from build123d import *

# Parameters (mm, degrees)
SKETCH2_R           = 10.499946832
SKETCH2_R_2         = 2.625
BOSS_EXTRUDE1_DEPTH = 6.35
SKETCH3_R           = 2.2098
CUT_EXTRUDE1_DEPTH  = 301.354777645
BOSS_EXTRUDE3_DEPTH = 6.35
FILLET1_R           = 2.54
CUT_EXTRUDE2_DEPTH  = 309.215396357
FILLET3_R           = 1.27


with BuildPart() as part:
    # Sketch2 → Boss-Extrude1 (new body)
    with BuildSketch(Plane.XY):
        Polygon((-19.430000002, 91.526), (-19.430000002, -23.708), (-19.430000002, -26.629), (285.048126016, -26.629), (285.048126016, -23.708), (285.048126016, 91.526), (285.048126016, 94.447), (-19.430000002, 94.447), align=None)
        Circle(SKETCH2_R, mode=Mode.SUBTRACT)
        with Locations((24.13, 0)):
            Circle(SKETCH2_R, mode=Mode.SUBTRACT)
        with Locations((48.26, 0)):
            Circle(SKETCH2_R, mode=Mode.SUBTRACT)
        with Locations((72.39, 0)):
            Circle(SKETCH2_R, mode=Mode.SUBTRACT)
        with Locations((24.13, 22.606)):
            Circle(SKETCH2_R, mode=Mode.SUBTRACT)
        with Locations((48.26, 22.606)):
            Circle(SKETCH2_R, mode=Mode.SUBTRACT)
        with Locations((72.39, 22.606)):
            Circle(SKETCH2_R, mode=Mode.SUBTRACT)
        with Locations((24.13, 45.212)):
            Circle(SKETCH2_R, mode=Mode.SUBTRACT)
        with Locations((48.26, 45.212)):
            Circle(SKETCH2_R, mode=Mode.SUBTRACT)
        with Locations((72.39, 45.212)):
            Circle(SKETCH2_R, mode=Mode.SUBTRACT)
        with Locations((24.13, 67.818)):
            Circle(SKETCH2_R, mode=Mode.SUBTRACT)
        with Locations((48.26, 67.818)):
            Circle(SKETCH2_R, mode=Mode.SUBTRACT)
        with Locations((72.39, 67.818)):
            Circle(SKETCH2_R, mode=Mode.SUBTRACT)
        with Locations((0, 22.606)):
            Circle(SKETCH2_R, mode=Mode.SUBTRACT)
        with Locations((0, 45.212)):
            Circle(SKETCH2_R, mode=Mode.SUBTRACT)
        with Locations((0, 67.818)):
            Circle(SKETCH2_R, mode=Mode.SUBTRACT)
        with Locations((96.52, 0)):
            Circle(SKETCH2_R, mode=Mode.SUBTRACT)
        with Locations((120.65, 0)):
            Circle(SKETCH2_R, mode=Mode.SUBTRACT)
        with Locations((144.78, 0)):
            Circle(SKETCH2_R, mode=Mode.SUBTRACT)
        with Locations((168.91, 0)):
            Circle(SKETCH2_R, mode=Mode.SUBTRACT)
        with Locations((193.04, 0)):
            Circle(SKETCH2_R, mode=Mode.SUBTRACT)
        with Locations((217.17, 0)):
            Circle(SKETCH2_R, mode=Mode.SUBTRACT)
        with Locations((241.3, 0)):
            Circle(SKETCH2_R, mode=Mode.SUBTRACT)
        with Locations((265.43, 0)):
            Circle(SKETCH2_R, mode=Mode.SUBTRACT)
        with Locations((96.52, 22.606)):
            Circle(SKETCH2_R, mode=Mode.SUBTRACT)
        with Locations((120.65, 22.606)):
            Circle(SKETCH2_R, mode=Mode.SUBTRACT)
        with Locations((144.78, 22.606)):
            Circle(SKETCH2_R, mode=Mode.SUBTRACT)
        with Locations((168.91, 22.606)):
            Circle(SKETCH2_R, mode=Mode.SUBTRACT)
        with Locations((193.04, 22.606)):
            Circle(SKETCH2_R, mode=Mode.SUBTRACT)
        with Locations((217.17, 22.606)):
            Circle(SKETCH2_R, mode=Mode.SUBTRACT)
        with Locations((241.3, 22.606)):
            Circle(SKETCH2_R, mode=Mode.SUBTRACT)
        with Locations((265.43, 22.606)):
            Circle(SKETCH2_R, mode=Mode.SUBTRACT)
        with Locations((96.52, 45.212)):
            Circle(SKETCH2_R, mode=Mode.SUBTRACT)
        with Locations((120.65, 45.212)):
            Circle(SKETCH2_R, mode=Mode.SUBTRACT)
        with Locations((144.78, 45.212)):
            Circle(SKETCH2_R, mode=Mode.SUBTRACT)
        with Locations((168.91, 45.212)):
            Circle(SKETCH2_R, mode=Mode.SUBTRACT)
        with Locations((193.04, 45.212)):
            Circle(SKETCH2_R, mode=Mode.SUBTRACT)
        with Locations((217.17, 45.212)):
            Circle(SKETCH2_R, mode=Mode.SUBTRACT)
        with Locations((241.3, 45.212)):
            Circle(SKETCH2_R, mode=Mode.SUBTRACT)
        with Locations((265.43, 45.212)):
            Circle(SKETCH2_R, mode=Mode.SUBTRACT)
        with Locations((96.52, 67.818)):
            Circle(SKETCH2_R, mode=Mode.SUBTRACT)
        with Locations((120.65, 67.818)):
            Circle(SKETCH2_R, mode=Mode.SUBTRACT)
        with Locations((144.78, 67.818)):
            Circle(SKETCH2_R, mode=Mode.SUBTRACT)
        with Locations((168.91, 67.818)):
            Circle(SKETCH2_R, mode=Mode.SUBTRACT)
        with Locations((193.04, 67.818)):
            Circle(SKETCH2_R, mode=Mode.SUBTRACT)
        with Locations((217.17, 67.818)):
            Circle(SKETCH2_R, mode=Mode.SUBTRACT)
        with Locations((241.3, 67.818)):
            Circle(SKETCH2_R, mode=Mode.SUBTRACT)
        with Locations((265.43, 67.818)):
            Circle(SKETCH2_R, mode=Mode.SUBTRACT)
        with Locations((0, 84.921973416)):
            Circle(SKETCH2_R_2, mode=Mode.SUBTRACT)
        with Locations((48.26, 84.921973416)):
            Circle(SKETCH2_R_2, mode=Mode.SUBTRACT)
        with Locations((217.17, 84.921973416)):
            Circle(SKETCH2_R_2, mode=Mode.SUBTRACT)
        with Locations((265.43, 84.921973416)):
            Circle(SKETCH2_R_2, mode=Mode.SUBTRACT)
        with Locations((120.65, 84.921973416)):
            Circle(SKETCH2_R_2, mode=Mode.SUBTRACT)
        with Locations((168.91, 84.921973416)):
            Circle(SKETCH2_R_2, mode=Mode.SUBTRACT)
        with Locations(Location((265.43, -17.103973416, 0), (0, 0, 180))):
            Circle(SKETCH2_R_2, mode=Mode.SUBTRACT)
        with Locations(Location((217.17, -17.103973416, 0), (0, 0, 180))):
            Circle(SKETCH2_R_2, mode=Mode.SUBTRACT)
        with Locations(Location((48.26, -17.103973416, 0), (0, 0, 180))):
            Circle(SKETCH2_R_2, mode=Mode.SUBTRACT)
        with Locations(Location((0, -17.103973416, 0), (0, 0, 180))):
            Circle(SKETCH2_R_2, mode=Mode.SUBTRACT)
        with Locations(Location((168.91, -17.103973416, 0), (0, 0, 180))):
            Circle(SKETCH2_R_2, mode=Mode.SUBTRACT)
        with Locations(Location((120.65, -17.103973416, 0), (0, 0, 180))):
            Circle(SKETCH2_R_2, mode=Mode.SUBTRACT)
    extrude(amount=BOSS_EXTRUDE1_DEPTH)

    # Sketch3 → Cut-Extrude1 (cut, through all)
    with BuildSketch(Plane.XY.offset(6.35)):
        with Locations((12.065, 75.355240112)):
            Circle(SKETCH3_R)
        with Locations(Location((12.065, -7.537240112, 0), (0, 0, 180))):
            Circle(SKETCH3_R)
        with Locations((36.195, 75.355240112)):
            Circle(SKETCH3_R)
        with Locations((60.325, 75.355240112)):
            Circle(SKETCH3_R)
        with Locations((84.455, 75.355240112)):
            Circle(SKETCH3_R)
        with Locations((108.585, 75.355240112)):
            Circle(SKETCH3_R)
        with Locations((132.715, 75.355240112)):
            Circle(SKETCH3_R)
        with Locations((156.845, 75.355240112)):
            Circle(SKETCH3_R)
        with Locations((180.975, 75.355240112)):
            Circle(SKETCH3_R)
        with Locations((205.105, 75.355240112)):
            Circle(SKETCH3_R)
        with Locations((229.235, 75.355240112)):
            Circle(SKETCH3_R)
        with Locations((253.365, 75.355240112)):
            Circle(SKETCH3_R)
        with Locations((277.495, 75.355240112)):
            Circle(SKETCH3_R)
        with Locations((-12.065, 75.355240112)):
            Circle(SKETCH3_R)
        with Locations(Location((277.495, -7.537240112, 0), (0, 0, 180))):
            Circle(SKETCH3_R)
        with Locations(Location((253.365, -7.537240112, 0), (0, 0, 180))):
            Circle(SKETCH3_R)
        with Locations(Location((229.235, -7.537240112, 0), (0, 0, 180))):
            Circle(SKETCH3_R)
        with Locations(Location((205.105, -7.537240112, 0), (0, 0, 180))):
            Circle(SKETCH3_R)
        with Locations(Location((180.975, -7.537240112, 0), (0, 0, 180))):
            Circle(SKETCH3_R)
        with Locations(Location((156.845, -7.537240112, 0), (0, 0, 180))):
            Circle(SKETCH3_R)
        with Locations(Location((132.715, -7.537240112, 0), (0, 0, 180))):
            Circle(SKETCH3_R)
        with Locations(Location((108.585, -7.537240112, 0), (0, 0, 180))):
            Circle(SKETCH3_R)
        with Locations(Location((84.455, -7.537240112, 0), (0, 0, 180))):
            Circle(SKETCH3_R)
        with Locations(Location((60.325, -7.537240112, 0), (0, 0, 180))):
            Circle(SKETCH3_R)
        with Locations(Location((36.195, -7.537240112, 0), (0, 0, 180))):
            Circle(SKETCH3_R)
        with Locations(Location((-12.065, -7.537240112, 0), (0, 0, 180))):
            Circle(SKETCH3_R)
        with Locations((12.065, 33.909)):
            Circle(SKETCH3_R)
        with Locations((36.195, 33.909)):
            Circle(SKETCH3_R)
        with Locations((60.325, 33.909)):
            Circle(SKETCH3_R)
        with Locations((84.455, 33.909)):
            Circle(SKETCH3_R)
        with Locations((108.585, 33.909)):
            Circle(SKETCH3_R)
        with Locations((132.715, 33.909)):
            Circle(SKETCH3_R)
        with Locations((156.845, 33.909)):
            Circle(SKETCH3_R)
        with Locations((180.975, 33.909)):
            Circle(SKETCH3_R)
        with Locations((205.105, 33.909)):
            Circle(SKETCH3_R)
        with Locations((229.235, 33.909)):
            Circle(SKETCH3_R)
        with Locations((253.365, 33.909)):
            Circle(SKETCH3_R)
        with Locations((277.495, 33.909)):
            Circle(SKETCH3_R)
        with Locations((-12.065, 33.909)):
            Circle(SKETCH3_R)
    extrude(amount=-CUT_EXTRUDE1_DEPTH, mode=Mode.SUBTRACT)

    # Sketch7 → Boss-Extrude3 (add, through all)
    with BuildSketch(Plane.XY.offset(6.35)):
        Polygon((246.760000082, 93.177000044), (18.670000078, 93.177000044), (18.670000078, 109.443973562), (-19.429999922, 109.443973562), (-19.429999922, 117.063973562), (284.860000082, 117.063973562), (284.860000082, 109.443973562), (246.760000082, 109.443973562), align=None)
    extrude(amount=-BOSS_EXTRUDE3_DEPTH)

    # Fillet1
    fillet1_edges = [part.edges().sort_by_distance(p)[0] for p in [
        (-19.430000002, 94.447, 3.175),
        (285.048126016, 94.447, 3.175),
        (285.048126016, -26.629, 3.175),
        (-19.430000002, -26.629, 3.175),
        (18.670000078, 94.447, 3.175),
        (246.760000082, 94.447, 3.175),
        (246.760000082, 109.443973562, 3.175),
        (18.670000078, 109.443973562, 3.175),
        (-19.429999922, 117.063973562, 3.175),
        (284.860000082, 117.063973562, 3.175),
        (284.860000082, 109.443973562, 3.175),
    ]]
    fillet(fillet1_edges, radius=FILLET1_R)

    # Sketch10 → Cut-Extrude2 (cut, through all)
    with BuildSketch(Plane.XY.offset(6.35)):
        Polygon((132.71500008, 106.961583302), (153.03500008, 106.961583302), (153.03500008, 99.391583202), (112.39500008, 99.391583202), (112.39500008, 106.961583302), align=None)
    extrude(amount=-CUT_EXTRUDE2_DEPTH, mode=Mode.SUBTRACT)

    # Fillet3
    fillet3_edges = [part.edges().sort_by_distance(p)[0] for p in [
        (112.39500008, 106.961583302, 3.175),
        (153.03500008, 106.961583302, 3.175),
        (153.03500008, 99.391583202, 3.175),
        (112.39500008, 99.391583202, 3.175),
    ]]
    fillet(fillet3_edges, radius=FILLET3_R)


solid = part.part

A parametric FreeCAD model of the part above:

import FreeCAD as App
import Part
import Sketcher

V = App.Vector
Q = App.Units.Quantity


def edges_at(feature, points):
    """Names of the edges that pass closest to the given points."""
    edges = feature.Shape.Edges
    near = lambda p: min(range(len(edges)), key=lambda i: edges[i].distToShape(Part.Vertex(*p))[0])
    return sorted({f"Edge{near(p) + 1}" for p in points})


def add_polygon(sketch, points):
    """Adds a closed chain of lines whose ends are joined by coincident constraints."""
    first, n = sketch.GeometryCount, len(points)
    for a, b in zip(points, points[1:] + points[:1]):
        sketch.addGeometry(Part.LineSegment(App.Vector(*a, 0), App.Vector(*b, 0)), False)
    for i in range(n):
        sketch.addConstraint(Sketcher.Constraint("Coincident", first + i, 2, first + (i + 1) % n, 1))

doc = App.newDocument("Part")
body = doc.addObject("PartDesign::Body", "Body")

# Sketch on XY plane
sketch1 = doc.addObject("Sketcher::SketchObject", "Sketch")
body.addObject(sketch1)
sketch1.AttachmentSupport = (doc.XY_Plane, [""])
sketch1.MapMode = "FlatFace"
add_polygon(sketch1, [(-19.43, -26.629), (285.048126, -26.629), (285.048126, 94.447), (-19.43, 94.447)])  # lines 0-3
sketch1.addGeometry(Part.Circle(V(0, -17.103973, 0), V(0, 0, 1), 2.625), False)  # 4
sketch1.addGeometry(Part.Circle(V(48.26, -17.103973, 0), V(0, 0, 1), 2.625), False)  # 5
sketch1.addGeometry(Part.Circle(V(0, 0, 0), V(0, 0, 1), 10.499947), False)  # 6
sketch1.addGeometry(Part.Circle(V(24.13, 0, 0), V(0, 0, 1), 10.499947), False)  # 7
sketch1.addGeometry(Part.Circle(V(48.26, 0, 0), V(0, 0, 1), 10.499947), False)  # 8
sketch1.addGeometry(Part.Circle(V(120.65, -17.103973, 0), V(0, 0, 1), 2.625), False)  # 9
sketch1.addGeometry(Part.Circle(V(72.39, 0, 0), V(0, 0, 1), 10.499947), False)  # 10
sketch1.addGeometry(Part.Circle(V(96.52, 0, 0), V(0, 0, 1), 10.499947), False)  # 11
sketch1.addGeometry(Part.Circle(V(120.65, 0, 0), V(0, 0, 1), 10.499947), False)  # 12
sketch1.addGeometry(Part.Circle(V(0, 22.606, 0), V(0, 0, 1), 10.499947), False)  # 13
sketch1.addGeometry(Part.Circle(V(24.13, 22.606, 0), V(0, 0, 1), 10.499947), False)  # 14
sketch1.addGeometry(Part.Circle(V(48.26, 22.606, 0), V(0, 0, 1), 10.499947), False)  # 15
sketch1.addGeometry(Part.Circle(V(72.39, 22.606, 0), V(0, 0, 1), 10.499947), False)  # 16
sketch1.addGeometry(Part.Circle(V(96.52, 22.606, 0), V(0, 0, 1), 10.499947), False)  # 17
sketch1.addGeometry(Part.Circle(V(120.65, 22.606, 0), V(0, 0, 1), 10.499947), False)  # 18
sketch1.addGeometry(Part.Circle(V(168.91, -17.103973, 0), V(0, 0, 1), 2.625), False)  # 19
sketch1.addGeometry(Part.Circle(V(144.78, 0, 0), V(0, 0, 1), 10.499947), False)  # 20
sketch1.addGeometry(Part.Circle(V(168.91, 0, 0), V(0, 0, 1), 10.499947), False)  # 21
sketch1.addGeometry(Part.Circle(V(193.04, 0, 0), V(0, 0, 1), 10.499947), False)  # 22
sketch1.addGeometry(Part.Circle(V(217.17, -17.103973, 0), V(0, 0, 1), 2.625), False)  # 23
sketch1.addGeometry(Part.Circle(V(265.43, -17.103973, 0), V(0, 0, 1), 2.625), False)  # 24
sketch1.addGeometry(Part.Circle(V(217.17, 0, 0), V(0, 0, 1), 10.499947), False)  # 25
sketch1.addGeometry(Part.Circle(V(241.3, 0, 0), V(0, 0, 1), 10.499947), False)  # 26
sketch1.addGeometry(Part.Circle(V(265.43, 0, 0), V(0, 0, 1), 10.499947), False)  # 27
sketch1.addGeometry(Part.Circle(V(144.78, 22.606, 0), V(0, 0, 1), 10.499947), False)  # 28
sketch1.addGeometry(Part.Circle(V(168.91, 22.606, 0), V(0, 0, 1), 10.499947), False)  # 29
sketch1.addGeometry(Part.Circle(V(193.04, 22.606, 0), V(0, 0, 1), 10.499947), False)  # 30
sketch1.addGeometry(Part.Circle(V(217.17, 22.606, 0), V(0, 0, 1), 10.499947), False)  # 31
sketch1.addGeometry(Part.Circle(V(241.3, 22.606, 0), V(0, 0, 1), 10.499947), False)  # 32
sketch1.addGeometry(Part.Circle(V(265.43, 22.606, 0), V(0, 0, 1), 10.499947), False)  # 33
sketch1.addGeometry(Part.Circle(V(0, 45.212, 0), V(0, 0, 1), 10.499947), False)  # 34
sketch1.addGeometry(Part.Circle(V(24.13, 45.212, 0), V(0, 0, 1), 10.499947), False)  # 35
sketch1.addGeometry(Part.Circle(V(48.26, 45.212, 0), V(0, 0, 1), 10.499947), False)  # 36
sketch1.addGeometry(Part.Circle(V(72.39, 45.212, 0), V(0, 0, 1), 10.499947), False)  # 37
sketch1.addGeometry(Part.Circle(V(96.52, 45.212, 0), V(0, 0, 1), 10.499947), False)  # 38
sketch1.addGeometry(Part.Circle(V(120.65, 45.212, 0), V(0, 0, 1), 10.499947), False)  # 39
sketch1.addGeometry(Part.Circle(V(0, 67.818, 0), V(0, 0, 1), 10.499947), False)  # 40
sketch1.addGeometry(Part.Circle(V(24.13, 67.818, 0), V(0, 0, 1), 10.499947), False)  # 41
sketch1.addGeometry(Part.Circle(V(48.26, 67.818, 0), V(0, 0, 1), 10.499947), False)  # 42
sketch1.addGeometry(Part.Circle(V(0, 84.921973, 0), V(0, 0, 1), 2.625), False)  # 43
sketch1.addGeometry(Part.Circle(V(48.26, 84.921973, 0), V(0, 0, 1), 2.625), False)  # 44
sketch1.addGeometry(Part.Circle(V(72.39, 67.818, 0), V(0, 0, 1), 10.499947), False)  # 45
sketch1.addGeometry(Part.Circle(V(96.52, 67.818, 0), V(0, 0, 1), 10.499947), False)  # 46
sketch1.addGeometry(Part.Circle(V(120.65, 67.818, 0), V(0, 0, 1), 10.499947), False)  # 47
sketch1.addGeometry(Part.Circle(V(120.65, 84.921973, 0), V(0, 0, 1), 2.625), False)  # 48
sketch1.addGeometry(Part.Circle(V(144.78, 45.212, 0), V(0, 0, 1), 10.499947), False)  # 49
sketch1.addGeometry(Part.Circle(V(168.91, 45.212, 0), V(0, 0, 1), 10.499947), False)  # 50
sketch1.addGeometry(Part.Circle(V(193.04, 45.212, 0), V(0, 0, 1), 10.499947), False)  # 51
sketch1.addGeometry(Part.Circle(V(217.17, 45.212, 0), V(0, 0, 1), 10.499947), False)  # 52
sketch1.addGeometry(Part.Circle(V(241.3, 45.212, 0), V(0, 0, 1), 10.499947), False)  # 53
sketch1.addGeometry(Part.Circle(V(265.43, 45.212, 0), V(0, 0, 1), 10.499947), False)  # 54
sketch1.addGeometry(Part.Circle(V(144.78, 67.818, 0), V(0, 0, 1), 10.499947), False)  # 55
sketch1.addGeometry(Part.Circle(V(168.91, 67.818, 0), V(0, 0, 1), 10.499947), False)  # 56
sketch1.addGeometry(Part.Circle(V(193.04, 67.818, 0), V(0, 0, 1), 10.499947), False)  # 57
sketch1.addGeometry(Part.Circle(V(168.91, 84.921973, 0), V(0, 0, 1), 2.625), False)  # 58
sketch1.addGeometry(Part.Circle(V(217.17, 67.818, 0), V(0, 0, 1), 10.499947), False)  # 59
sketch1.addGeometry(Part.Circle(V(241.3, 67.818, 0), V(0, 0, 1), 10.499947), False)  # 60
sketch1.addGeometry(Part.Circle(V(265.43, 67.818, 0), V(0, 0, 1), 10.499947), False)  # 61
sketch1.addGeometry(Part.Circle(V(217.17, 84.921973, 0), V(0, 0, 1), 2.625), False)  # 62
sketch1.addGeometry(Part.Circle(V(265.43, 84.921973, 0), V(0, 0, 1), 2.625), False)  # 63
sketch1.addConstraint(Sketcher.Constraint("Horizontal", 0))
sketch1.addConstraint(Sketcher.Constraint("Vertical", 1))
sketch1.addConstraint(Sketcher.Constraint("Horizontal", 2))
sketch1.addConstraint(Sketcher.Constraint("Vertical", 3))
sketch1.addConstraint(Sketcher.Constraint("Coincident", 6, 3, -1, 1))
sketch1.addConstraint(Sketcher.Constraint("Equal", 4, 5))
sketch1.addConstraint(Sketcher.Constraint("Equal", 6, 7))
sketch1.addConstraint(Sketcher.Constraint("Equal", 7, 8))
sketch1.addConstraint(Sketcher.Constraint("Equal", 5, 9))
sketch1.addConstraint(Sketcher.Constraint("Equal", 8, 10))
sketch1.addConstraint(Sketcher.Constraint("Equal", 10, 11))
sketch1.addConstraint(Sketcher.Constraint("Equal", 11, 12))
sketch1.addConstraint(Sketcher.Constraint("Equal", 12, 13))
sketch1.addConstraint(Sketcher.Constraint("Equal", 13, 14))
sketch1.addConstraint(Sketcher.Constraint("Equal", 14, 15))
sketch1.addConstraint(Sketcher.Constraint("Equal", 15, 16))
sketch1.addConstraint(Sketcher.Constraint("Equal", 16, 17))
sketch1.addConstraint(Sketcher.Constraint("Equal", 17, 18))
sketch1.addConstraint(Sketcher.Constraint("Equal", 9, 19))
sketch1.addConstraint(Sketcher.Constraint("Equal", 18, 20))
sketch1.addConstraint(Sketcher.Constraint("Equal", 20, 21))
sketch1.addConstraint(Sketcher.Constraint("Equal", 21, 22))
sketch1.addConstraint(Sketcher.Constraint("Equal", 19, 23))
sketch1.addConstraint(Sketcher.Constraint("Equal", 23, 24))
sketch1.addConstraint(Sketcher.Constraint("Equal", 22, 25))
sketch1.addConstraint(Sketcher.Constraint("Equal", 25, 26))
sketch1.addConstraint(Sketcher.Constraint("Equal", 26, 27))
sketch1.addConstraint(Sketcher.Constraint("Equal", 27, 28))
sketch1.addConstraint(Sketcher.Constraint("Equal", 28, 29))
sketch1.addConstraint(Sketcher.Constraint("Equal", 29, 30))
sketch1.addConstraint(Sketcher.Constraint("Equal", 30, 31))
sketch1.addConstraint(Sketcher.Constraint("Equal", 31, 32))
sketch1.addConstraint(Sketcher.Constraint("Equal", 32, 33))
sketch1.addConstraint(Sketcher.Constraint("Equal", 33, 34))
sketch1.addConstraint(Sketcher.Constraint("Equal", 34, 35))
sketch1.addConstraint(Sketcher.Constraint("Equal", 35, 36))
sketch1.addConstraint(Sketcher.Constraint("Equal", 36, 37))
sketch1.addConstraint(Sketcher.Constraint("Equal", 37, 38))
sketch1.addConstraint(Sketcher.Constraint("Equal", 38, 39))
sketch1.addConstraint(Sketcher.Constraint("Equal", 39, 40))
sketch1.addConstraint(Sketcher.Constraint("Equal", 40, 41))
sketch1.addConstraint(Sketcher.Constraint("Equal", 41, 42))
sketch1.addConstraint(Sketcher.Constraint("Equal", 24, 43))
sketch1.addConstraint(Sketcher.Constraint("Equal", 43, 44))
sketch1.addConstraint(Sketcher.Constraint("Equal", 42, 45))
sketch1.addConstraint(Sketcher.Constraint("Equal", 45, 46))
sketch1.addConstraint(Sketcher.Constraint("Equal", 46, 47))
sketch1.addConstraint(Sketcher.Constraint("Equal", 44, 48))
sketch1.addConstraint(Sketcher.Constraint("Equal", 47, 49))
sketch1.addConstraint(Sketcher.Constraint("Equal", 49, 50))
sketch1.addConstraint(Sketcher.Constraint("Equal", 50, 51))
sketch1.addConstraint(Sketcher.Constraint("Equal", 51, 52))
sketch1.addConstraint(Sketcher.Constraint("Equal", 52, 53))
sketch1.addConstraint(Sketcher.Constraint("Equal", 53, 54))
sketch1.addConstraint(Sketcher.Constraint("Equal", 54, 55))
sketch1.addConstraint(Sketcher.Constraint("Equal", 55, 56))
sketch1.addConstraint(Sketcher.Constraint("Equal", 56, 57))
sketch1.addConstraint(Sketcher.Constraint("Equal", 48, 58))
sketch1.addConstraint(Sketcher.Constraint("Equal", 57, 59))
sketch1.addConstraint(Sketcher.Constraint("Equal", 59, 60))
sketch1.addConstraint(Sketcher.Constraint("Equal", 60, 61))
sketch1.addConstraint(Sketcher.Constraint("Equal", 58, 62))
sketch1.addConstraint(Sketcher.Constraint("Equal", 62, 63))
sketch1.addConstraint(Sketcher.Constraint("PointOnObject", 4, 3, -2))
sketch1.addConstraint(Sketcher.Constraint("PointOnObject", 7, 3, -1))
sketch1.addConstraint(Sketcher.Constraint("PointOnObject", 8, 3, -1))
sketch1.addConstraint(Sketcher.Constraint("PointOnObject", 10, 3, -1))
sketch1.addConstraint(Sketcher.Constraint("PointOnObject", 11, 3, -1))
sketch1.addConstraint(Sketcher.Constraint("PointOnObject", 12, 3, -1))
sketch1.addConstraint(Sketcher.Constraint("PointOnObject", 13, 3, -2))
sketch1.addConstraint(Sketcher.Constraint("PointOnObject", 20, 3, -1))
sketch1.addConstraint(Sketcher.Constraint("PointOnObject", 21, 3, -1))
sketch1.addConstraint(Sketcher.Constraint("PointOnObject", 22, 3, -1))
sketch1.addConstraint(Sketcher.Constraint("PointOnObject", 25, 3, -1))
sketch1.addConstraint(Sketcher.Constraint("PointOnObject", 26, 3, -1))
sketch1.addConstraint(Sketcher.Constraint("PointOnObject", 27, 3, -1))
sketch1.addConstraint(Sketcher.Constraint("PointOnObject", 34, 3, -2))
sketch1.addConstraint(Sketcher.Constraint("PointOnObject", 40, 3, -2))
sketch1.addConstraint(Sketcher.Constraint("PointOnObject", 43, 3, -2))
sketch1.addConstraint(Sketcher.Constraint("Horizontal", 4, 3, 5, 3))
sketch1.addConstraint(Sketcher.Constraint("Horizontal", 5, 3, 9, 3))
sketch1.addConstraint(Sketcher.Constraint("Horizontal", 13, 3, 14, 3))
sketch1.addConstraint(Sketcher.Constraint("Horizontal", 14, 3, 15, 3))
sketch1.addConstraint(Sketcher.Constraint("Horizontal", 15, 3, 16, 3))
sketch1.addConstraint(Sketcher.Constraint("Horizontal", 16, 3, 17, 3))
sketch1.addConstraint(Sketcher.Constraint("Horizontal", 17, 3, 18, 3))
sketch1.addConstraint(Sketcher.Constraint("Horizontal", 9, 3, 19, 3))
sketch1.addConstraint(Sketcher.Constraint("Horizontal", 19, 3, 23, 3))
sketch1.addConstraint(Sketcher.Constraint("Horizontal", 23, 3, 24, 3))
sketch1.addConstraint(Sketcher.Constraint("Horizontal", 18, 3, 28, 3))
sketch1.addConstraint(Sketcher.Constraint("Horizontal", 28, 3, 29, 3))
sketch1.addConstraint(Sketcher.Constraint("Horizontal", 29, 3, 30, 3))
sketch1.addConstraint(Sketcher.Constraint("Horizontal", 30, 3, 31, 3))
sketch1.addConstraint(Sketcher.Constraint("Horizontal", 31, 3, 32, 3))
sketch1.addConstraint(Sketcher.Constraint("Horizontal", 32, 3, 33, 3))
sketch1.addConstraint(Sketcher.Constraint("Horizontal", 34, 3, 35, 3))
sketch1.addConstraint(Sketcher.Constraint("Horizontal", 35, 3, 36, 3))
sketch1.addConstraint(Sketcher.Constraint("Horizontal", 36, 3, 37, 3))
sketch1.addConstraint(Sketcher.Constraint("Horizontal", 37, 3, 38, 3))
sketch1.addConstraint(Sketcher.Constraint("Horizontal", 38, 3, 39, 3))
sketch1.addConstraint(Sketcher.Constraint("Horizontal", 40, 3, 41, 3))
sketch1.addConstraint(Sketcher.Constraint("Horizontal", 41, 3, 42, 3))
sketch1.addConstraint(Sketcher.Constraint("Horizontal", 43, 3, 44, 3))
sketch1.addConstraint(Sketcher.Constraint("Horizontal", 42, 3, 45, 3))
sketch1.addConstraint(Sketcher.Constraint("Horizontal", 45, 3, 46, 3))
sketch1.addConstraint(Sketcher.Constraint("Horizontal", 46, 3, 47, 3))
sketch1.addConstraint(Sketcher.Constraint("Horizontal", 44, 3, 48, 3))
sketch1.addConstraint(Sketcher.Constraint("Horizontal", 39, 3, 49, 3))
sketch1.addConstraint(Sketcher.Constraint("Horizontal", 49, 3, 50, 3))
sketch1.addConstraint(Sketcher.Constraint("Horizontal", 50, 3, 51, 3))
sketch1.addConstraint(Sketcher.Constraint("Horizontal", 51, 3, 52, 3))
sketch1.addConstraint(Sketcher.Constraint("Horizontal", 52, 3, 53, 3))
sketch1.addConstraint(Sketcher.Constraint("Horizontal", 53, 3, 54, 3))
sketch1.addConstraint(Sketcher.Constraint("Horizontal", 47, 3, 55, 3))
sketch1.addConstraint(Sketcher.Constraint("Horizontal", 55, 3, 56, 3))
sketch1.addConstraint(Sketcher.Constraint("Horizontal", 56, 3, 57, 3))
sketch1.addConstraint(Sketcher.Constraint("Horizontal", 48, 3, 58, 3))
sketch1.addConstraint(Sketcher.Constraint("Horizontal", 57, 3, 59, 3))
sketch1.addConstraint(Sketcher.Constraint("Horizontal", 59, 3, 60, 3))
sketch1.addConstraint(Sketcher.Constraint("Horizontal", 60, 3, 61, 3))
sketch1.addConstraint(Sketcher.Constraint("Horizontal", 58, 3, 62, 3))
sketch1.addConstraint(Sketcher.Constraint("Horizontal", 62, 3, 63, 3))
sketch1.addConstraint(Sketcher.Constraint("Vertical", 5, 3, 8, 3))
sketch1.addConstraint(Sketcher.Constraint("Vertical", 9, 3, 12, 3))
sketch1.addConstraint(Sketcher.Constraint("Vertical", 7, 3, 14, 3))
sketch1.addConstraint(Sketcher.Constraint("Vertical", 8, 3, 15, 3))
sketch1.addConstraint(Sketcher.Constraint("Vertical", 10, 3, 16, 3))
sketch1.addConstraint(Sketcher.Constraint("Vertical", 11, 3, 17, 3))
sketch1.addConstraint(Sketcher.Constraint("Vertical", 12, 3, 18, 3))
sketch1.addConstraint(Sketcher.Constraint("Vertical", 19, 3, 21, 3))
sketch1.addConstraint(Sketcher.Constraint("Vertical", 23, 3, 25, 3))
sketch1.addConstraint(Sketcher.Constraint("Vertical", 24, 3, 27, 3))
sketch1.addConstraint(Sketcher.Constraint("Vertical", 20, 3, 28, 3))
sketch1.addConstraint(Sketcher.Constraint("Vertical", 21, 3, 29, 3))
sketch1.addConstraint(Sketcher.Constraint("Vertical", 22, 3, 30, 3))
sketch1.addConstraint(Sketcher.Constraint("Vertical", 25, 3, 31, 3))
sketch1.addConstraint(Sketcher.Constraint("Vertical", 26, 3, 32, 3))
sketch1.addConstraint(Sketcher.Constraint("Vertical", 27, 3, 33, 3))
sketch1.addConstraint(Sketcher.Constraint("Vertical", 14, 3, 35, 3))
sketch1.addConstraint(Sketcher.Constraint("Vertical", 15, 3, 36, 3))
sketch1.addConstraint(Sketcher.Constraint("Vertical", 16, 3, 37, 3))
sketch1.addConstraint(Sketcher.Constraint("Vertical", 17, 3, 38, 3))
sketch1.addConstraint(Sketcher.Constraint("Vertical", 18, 3, 39, 3))
sketch1.addConstraint(Sketcher.Constraint("Vertical", 35, 3, 41, 3))
sketch1.addConstraint(Sketcher.Constraint("Vertical", 36, 3, 42, 3))
sketch1.addConstraint(Sketcher.Constraint("Vertical", 42, 3, 44, 3))
sketch1.addConstraint(Sketcher.Constraint("Vertical", 37, 3, 45, 3))
sketch1.addConstraint(Sketcher.Constraint("Vertical", 38, 3, 46, 3))
sketch1.addConstraint(Sketcher.Constraint("Vertical", 39, 3, 47, 3))
sketch1.addConstraint(Sketcher.Constraint("Vertical", 47, 3, 48, 3))
sketch1.addConstraint(Sketcher.Constraint("Vertical", 28, 3, 49, 3))
sketch1.addConstraint(Sketcher.Constraint("Vertical", 29, 3, 50, 3))
sketch1.addConstraint(Sketcher.Constraint("Vertical", 30, 3, 51, 3))
sketch1.addConstraint(Sketcher.Constraint("Vertical", 31, 3, 52, 3))
sketch1.addConstraint(Sketcher.Constraint("Vertical", 32, 3, 53, 3))
sketch1.addConstraint(Sketcher.Constraint("Vertical", 33, 3, 54, 3))
sketch1.addConstraint(Sketcher.Constraint("Vertical", 49, 3, 55, 3))
sketch1.addConstraint(Sketcher.Constraint("Vertical", 50, 3, 56, 3))
sketch1.addConstraint(Sketcher.Constraint("Vertical", 51, 3, 57, 3))
sketch1.addConstraint(Sketcher.Constraint("Vertical", 56, 3, 58, 3))
sketch1.addConstraint(Sketcher.Constraint("Vertical", 52, 3, 59, 3))
sketch1.addConstraint(Sketcher.Constraint("Vertical", 53, 3, 60, 3))
sketch1.addConstraint(Sketcher.Constraint("Vertical", 54, 3, 61, 3))
sketch1.addConstraint(Sketcher.Constraint("Vertical", 59, 3, 62, 3))
sketch1.addConstraint(Sketcher.Constraint("Vertical", 61, 3, 63, 3))
sketch1.addConstraint(Sketcher.Constraint("DistanceX", -1, 1, 5, 3, Q("1.9 in")))
sketch1.addConstraint(Sketcher.Constraint("DistanceX", -1, 1, 11, 3, Q("3.8 in")))
sketch1.addConstraint(Sketcher.Constraint("DistanceX", -1, 1, 20, 3, Q("5.7 in")))
sketch1.addConstraint(Sketcher.Constraint("DistanceX", -1, 1, 22, 3, Q("7.6 in")))
sketch1.addConstraint(Sketcher.Constraint("DistanceX", -1, 1, 26, 3, Q("9.5 in")))
sketch1.addConstraint(Sketcher.Constraint("Diameter", 4, 5.25))
sketch1.addConstraint(Sketcher.Constraint("DistanceX", -1, 1, 7, 3, Q("0.95 in")))
sketch1.addConstraint(Sketcher.Constraint("DistanceX", -1, 1, 9, 3, Q("4.75 in")))
sketch1.addConstraint(Sketcher.Constraint("DistanceX", -1, 1, 10, 3, Q("2.85 in")))
sketch1.addConstraint(Sketcher.Constraint("DistanceY", -1, 1, 13, 3, Q("0.89 in")))
sketch1.addConstraint(Sketcher.Constraint("DistanceX", -1, 1, 19, 3, Q("6.65 in")))
sketch1.addConstraint(Sketcher.Constraint("DistanceX", -1, 1, 23, 3, Q("8.55 in")))
sketch1.addConstraint(Sketcher.Constraint("DistanceX", -1, 1, 24, 3, Q("10.45 in")))
sketch1.addConstraint(Sketcher.Constraint("DistanceY", -1, 1, 34, 3, Q("1.78 in")))
sketch1.addConstraint(Sketcher.Constraint("DistanceY", -1, 1, 40, 3, Q("2.67 in")))
sketch1.addConstraint(Sketcher.Constraint("Diameter", 6, 20.999894))
sketch1.addConstraint(Sketcher.Constraint("DistanceY", 1, 1, 1, 2, 121.076))
sketch1.addConstraint(Sketcher.Constraint("DistanceY", 0, 2, -1, 1, 26.629))
sketch1.addConstraint(Sketcher.Constraint("DistanceX", 2, 2, -1, 1, 19.43))
sketch1.addConstraint(Sketcher.Constraint("DistanceX", 0, 1, 0, 2, 304.478126))
sketch1.addConstraint(Sketcher.Constraint("DistanceY", 4, 3, -1, 1, 17.103973))
sketch1.addConstraint(Sketcher.Constraint("DistanceY", -1, 1, 43, 3, 84.921973))
pad1 = doc.addObject("PartDesign::Pad", "Pad")
body.addObject(pad1)
pad1.Profile = sketch1
pad1.Length = Q("0.25 in")

# Sketch on XY plane
sketch2 = doc.addObject("Sketcher::SketchObject", "Sketch001")
body.addObject(sketch2)
sketch2.AttachmentSupport = (doc.XY_Plane, [""])
sketch2.MapMode = "FlatFace"
sketch2.AttachmentOffset = App.Placement(V(0, 0, 0.25 * 25.4), App.Rotation())
sketch2.addGeometry(Part.Circle(V(12.065, 75.35524, 0), V(0, 0, 1), 2.2098), False)
sketch2.addGeometry(Part.Circle(V(12.065, -7.53724, 0), V(0, 0, 1), 2.2098), False)
sketch2.addGeometry(Part.Circle(V(36.195, 75.35524, 0), V(0, 0, 1), 2.2098), False)
sketch2.addGeometry(Part.Circle(V(60.325, 75.35524, 0), V(0, 0, 1), 2.2098), False)
sketch2.addGeometry(Part.Circle(V(84.455, 75.35524, 0), V(0, 0, 1), 2.2098), False)
sketch2.addGeometry(Part.Circle(V(108.585, 75.35524, 0), V(0, 0, 1), 2.2098), False)
sketch2.addGeometry(Part.Circle(V(132.715, 75.35524, 0), V(0, 0, 1), 2.2098), False)
sketch2.addGeometry(Part.Circle(V(156.845, 75.35524, 0), V(0, 0, 1), 2.2098), False)
sketch2.addGeometry(Part.Circle(V(180.975, 75.35524, 0), V(0, 0, 1), 2.2098), False)
sketch2.addGeometry(Part.Circle(V(205.105, 75.35524, 0), V(0, 0, 1), 2.2098), False)
sketch2.addGeometry(Part.Circle(V(229.235, 75.35524, 0), V(0, 0, 1), 2.2098), False)
sketch2.addGeometry(Part.Circle(V(253.365, 75.35524, 0), V(0, 0, 1), 2.2098), False)
sketch2.addGeometry(Part.Circle(V(277.495, 75.35524, 0), V(0, 0, 1), 2.2098), False)
sketch2.addGeometry(Part.Circle(V(-12.065, 75.35524, 0), V(0, 0, 1), 2.2098), False)
sketch2.addGeometry(Part.Circle(V(277.495, -7.53724, 0), V(0, 0, 1), 2.2098), False)
sketch2.addGeometry(Part.Circle(V(253.365, -7.53724, 0), V(0, 0, 1), 2.2098), False)
sketch2.addGeometry(Part.Circle(V(229.235, -7.53724, 0), V(0, 0, 1), 2.2098), False)
sketch2.addGeometry(Part.Circle(V(205.105, -7.53724, 0), V(0, 0, 1), 2.2098), False)
sketch2.addGeometry(Part.Circle(V(180.975, -7.53724, 0), V(0, 0, 1), 2.2098), False)
sketch2.addGeometry(Part.Circle(V(156.845, -7.53724, 0), V(0, 0, 1), 2.2098), False)
sketch2.addGeometry(Part.Circle(V(132.715, -7.53724, 0), V(0, 0, 1), 2.2098), False)
sketch2.addGeometry(Part.Circle(V(108.585, -7.53724, 0), V(0, 0, 1), 2.2098), False)
sketch2.addGeometry(Part.Circle(V(84.455, -7.53724, 0), V(0, 0, 1), 2.2098), False)
sketch2.addGeometry(Part.Circle(V(60.325, -7.53724, 0), V(0, 0, 1), 2.2098), False)
sketch2.addGeometry(Part.Circle(V(36.195, -7.53724, 0), V(0, 0, 1), 2.2098), False)
sketch2.addGeometry(Part.Circle(V(-12.065, -7.53724, 0), V(0, 0, 1), 2.2098), False)
sketch2.addGeometry(Part.Circle(V(12.065, 33.909, 0), V(0, 0, 1), 2.2098), False)
sketch2.addGeometry(Part.Circle(V(36.195, 33.909, 0), V(0, 0, 1), 2.2098), False)
sketch2.addGeometry(Part.Circle(V(60.325, 33.909, 0), V(0, 0, 1), 2.2098), False)
sketch2.addGeometry(Part.Circle(V(84.455, 33.909, 0), V(0, 0, 1), 2.2098), False)
sketch2.addGeometry(Part.Circle(V(108.585, 33.909, 0), V(0, 0, 1), 2.2098), False)
sketch2.addGeometry(Part.Circle(V(132.715, 33.909, 0), V(0, 0, 1), 2.2098), False)
sketch2.addGeometry(Part.Circle(V(156.845, 33.909, 0), V(0, 0, 1), 2.2098), False)
sketch2.addGeometry(Part.Circle(V(180.975, 33.909, 0), V(0, 0, 1), 2.2098), False)
sketch2.addGeometry(Part.Circle(V(205.105, 33.909, 0), V(0, 0, 1), 2.2098), False)
sketch2.addGeometry(Part.Circle(V(229.235, 33.909, 0), V(0, 0, 1), 2.2098), False)
sketch2.addGeometry(Part.Circle(V(253.365, 33.909, 0), V(0, 0, 1), 2.2098), False)
sketch2.addGeometry(Part.Circle(V(277.495, 33.909, 0), V(0, 0, 1), 2.2098), False)
sketch2.addGeometry(Part.Circle(V(-12.065, 33.909, 0), V(0, 0, 1), 2.2098), False)
sketch2.addConstraint(Sketcher.Constraint("Equal", 0, 1))
sketch2.addConstraint(Sketcher.Constraint("Equal", 1, 2))
sketch2.addConstraint(Sketcher.Constraint("Equal", 2, 3))
sketch2.addConstraint(Sketcher.Constraint("Equal", 3, 4))
sketch2.addConstraint(Sketcher.Constraint("Equal", 4, 5))
sketch2.addConstraint(Sketcher.Constraint("Equal", 5, 6))
sketch2.addConstraint(Sketcher.Constraint("Equal", 6, 7))
sketch2.addConstraint(Sketcher.Constraint("Equal", 7, 8))
sketch2.addConstraint(Sketcher.Constraint("Equal", 8, 9))
sketch2.addConstraint(Sketcher.Constraint("Equal", 9, 10))
sketch2.addConstraint(Sketcher.Constraint("Equal", 10, 11))
sketch2.addConstraint(Sketcher.Constraint("Equal", 11, 12))
sketch2.addConstraint(Sketcher.Constraint("Equal", 12, 13))
sketch2.addConstraint(Sketcher.Constraint("Equal", 13, 14))
sketch2.addConstraint(Sketcher.Constraint("Equal", 14, 15))
sketch2.addConstraint(Sketcher.Constraint("Equal", 15, 16))
sketch2.addConstraint(Sketcher.Constraint("Equal", 16, 17))
sketch2.addConstraint(Sketcher.Constraint("Equal", 17, 18))
sketch2.addConstraint(Sketcher.Constraint("Equal", 18, 19))
sketch2.addConstraint(Sketcher.Constraint("Equal", 19, 20))
sketch2.addConstraint(Sketcher.Constraint("Equal", 20, 21))
sketch2.addConstraint(Sketcher.Constraint("Equal", 21, 22))
sketch2.addConstraint(Sketcher.Constraint("Equal", 22, 23))
sketch2.addConstraint(Sketcher.Constraint("Equal", 23, 24))
sketch2.addConstraint(Sketcher.Constraint("Equal", 24, 25))
sketch2.addConstraint(Sketcher.Constraint("Equal", 25, 26))
sketch2.addConstraint(Sketcher.Constraint("Equal", 26, 27))
sketch2.addConstraint(Sketcher.Constraint("Equal", 27, 28))
sketch2.addConstraint(Sketcher.Constraint("Equal", 28, 29))
sketch2.addConstraint(Sketcher.Constraint("Equal", 29, 30))
sketch2.addConstraint(Sketcher.Constraint("Equal", 30, 31))
sketch2.addConstraint(Sketcher.Constraint("Equal", 31, 32))
sketch2.addConstraint(Sketcher.Constraint("Equal", 32, 33))
sketch2.addConstraint(Sketcher.Constraint("Equal", 33, 34))
sketch2.addConstraint(Sketcher.Constraint("Equal", 34, 35))
sketch2.addConstraint(Sketcher.Constraint("Equal", 35, 36))
sketch2.addConstraint(Sketcher.Constraint("Equal", 36, 37))
sketch2.addConstraint(Sketcher.Constraint("Equal", 37, 38))
sketch2.addConstraint(Sketcher.Constraint("Symmetric", 0, 3, 13, 3, -2))
sketch2.addConstraint(Sketcher.Constraint("Symmetric", 1, 3, 25, 3, -2))
sketch2.addConstraint(Sketcher.Constraint("Symmetric", 26, 3, 38, 3, -2))
sketch2.addConstraint(Sketcher.Constraint("Horizontal", 0, 3, 2, 3))
sketch2.addConstraint(Sketcher.Constraint("Horizontal", 2, 3, 3, 3))
sketch2.addConstraint(Sketcher.Constraint("Horizontal", 3, 3, 4, 3))
sketch2.addConstraint(Sketcher.Constraint("Horizontal", 4, 3, 5, 3))
sketch2.addConstraint(Sketcher.Constraint("Horizontal", 5, 3, 6, 3))
sketch2.addConstraint(Sketcher.Constraint("Horizontal", 6, 3, 7, 3))
sketch2.addConstraint(Sketcher.Constraint("Horizontal", 7, 3, 8, 3))
sketch2.addConstraint(Sketcher.Constraint("Horizontal", 8, 3, 9, 3))
sketch2.addConstraint(Sketcher.Constraint("Horizontal", 9, 3, 10, 3))
sketch2.addConstraint(Sketcher.Constraint("Horizontal", 10, 3, 11, 3))
sketch2.addConstraint(Sketcher.Constraint("Horizontal", 11, 3, 12, 3))
sketch2.addConstraint(Sketcher.Constraint("Horizontal", 1, 3, 14, 3))
sketch2.addConstraint(Sketcher.Constraint("Horizontal", 14, 3, 15, 3))
sketch2.addConstraint(Sketcher.Constraint("Horizontal", 15, 3, 16, 3))
sketch2.addConstraint(Sketcher.Constraint("Horizontal", 16, 3, 17, 3))
sketch2.addConstraint(Sketcher.Constraint("Horizontal", 17, 3, 18, 3))
sketch2.addConstraint(Sketcher.Constraint("Horizontal", 18, 3, 19, 3))
sketch2.addConstraint(Sketcher.Constraint("Horizontal", 19, 3, 20, 3))
sketch2.addConstraint(Sketcher.Constraint("Horizontal", 20, 3, 21, 3))
sketch2.addConstraint(Sketcher.Constraint("Horizontal", 21, 3, 22, 3))
sketch2.addConstraint(Sketcher.Constraint("Horizontal", 22, 3, 23, 3))
sketch2.addConstraint(Sketcher.Constraint("Horizontal", 23, 3, 24, 3))
sketch2.addConstraint(Sketcher.Constraint("Horizontal", 26, 3, 27, 3))
sketch2.addConstraint(Sketcher.Constraint("Horizontal", 27, 3, 28, 3))
sketch2.addConstraint(Sketcher.Constraint("Horizontal", 28, 3, 29, 3))
sketch2.addConstraint(Sketcher.Constraint("Horizontal", 29, 3, 30, 3))
sketch2.addConstraint(Sketcher.Constraint("Horizontal", 30, 3, 31, 3))
sketch2.addConstraint(Sketcher.Constraint("Horizontal", 31, 3, 32, 3))
sketch2.addConstraint(Sketcher.Constraint("Horizontal", 32, 3, 33, 3))
sketch2.addConstraint(Sketcher.Constraint("Horizontal", 33, 3, 34, 3))
sketch2.addConstraint(Sketcher.Constraint("Horizontal", 34, 3, 35, 3))
sketch2.addConstraint(Sketcher.Constraint("Horizontal", 35, 3, 36, 3))
sketch2.addConstraint(Sketcher.Constraint("Horizontal", 36, 3, 37, 3))
sketch2.addConstraint(Sketcher.Constraint("Vertical", 0, 3, 1, 3))
sketch2.addConstraint(Sketcher.Constraint("Vertical", 12, 3, 14, 3))
sketch2.addConstraint(Sketcher.Constraint("Vertical", 11, 3, 15, 3))
sketch2.addConstraint(Sketcher.Constraint("Vertical", 10, 3, 16, 3))
sketch2.addConstraint(Sketcher.Constraint("Vertical", 9, 3, 17, 3))
sketch2.addConstraint(Sketcher.Constraint("Vertical", 8, 3, 18, 3))
sketch2.addConstraint(Sketcher.Constraint("Vertical", 7, 3, 19, 3))
sketch2.addConstraint(Sketcher.Constraint("Vertical", 6, 3, 20, 3))
sketch2.addConstraint(Sketcher.Constraint("Vertical", 5, 3, 21, 3))
sketch2.addConstraint(Sketcher.Constraint("Vertical", 4, 3, 22, 3))
sketch2.addConstraint(Sketcher.Constraint("Vertical", 3, 3, 23, 3))
sketch2.addConstraint(Sketcher.Constraint("Vertical", 2, 3, 24, 3))
sketch2.addConstraint(Sketcher.Constraint("Vertical", 1, 3, 26, 3))
sketch2.addConstraint(Sketcher.Constraint("Vertical", 24, 3, 27, 3))
sketch2.addConstraint(Sketcher.Constraint("Vertical", 23, 3, 28, 3))
sketch2.addConstraint(Sketcher.Constraint("Vertical", 22, 3, 29, 3))
sketch2.addConstraint(Sketcher.Constraint("Vertical", 21, 3, 30, 3))
sketch2.addConstraint(Sketcher.Constraint("Vertical", 20, 3, 31, 3))
sketch2.addConstraint(Sketcher.Constraint("Vertical", 19, 3, 32, 3))
sketch2.addConstraint(Sketcher.Constraint("Vertical", 18, 3, 33, 3))
sketch2.addConstraint(Sketcher.Constraint("Vertical", 17, 3, 34, 3))
sketch2.addConstraint(Sketcher.Constraint("Vertical", 16, 3, 35, 3))
sketch2.addConstraint(Sketcher.Constraint("Vertical", 15, 3, 36, 3))
sketch2.addConstraint(Sketcher.Constraint("Vertical", 14, 3, 37, 3))
sketch2.addConstraint(Sketcher.Constraint("Diameter", 0, Q("0.174 in")))
sketch2.addConstraint(Sketcher.Constraint("DistanceX", 0, 3, 3, 3, Q("1.9 in")))
sketch2.addConstraint(Sketcher.Constraint("DistanceX", 2, 3, 4, 3, Q("1.9 in")))
sketch2.addConstraint(Sketcher.Constraint("DistanceX", 3, 3, 5, 3, Q("1.9 in")))
sketch2.addConstraint(Sketcher.Constraint("DistanceX", 4, 3, 6, 3, Q("1.9 in")))
sketch2.addConstraint(Sketcher.Constraint("DistanceX", 5, 3, 7, 3, Q("1.9 in")))
sketch2.addConstraint(Sketcher.Constraint("DistanceX", 6, 3, 8, 3, Q("1.9 in")))
sketch2.addConstraint(Sketcher.Constraint("DistanceX", 7, 3, 9, 3, Q("1.9 in")))
sketch2.addConstraint(Sketcher.Constraint("DistanceX", 8, 3, 10, 3, Q("1.9 in")))
sketch2.addConstraint(Sketcher.Constraint("DistanceX", 9, 3, 11, 3, Q("1.9 in")))
sketch2.addConstraint(Sketcher.Constraint("DistanceX", 10, 3, 12, 3, Q("1.9 in")))
sketch2.addConstraint(Sketcher.Constraint("DistanceX", 13, 3, 2, 3, Q("1.9 in")))
sketch2.addConstraint(Sketcher.Constraint("DistanceX", 0, 3, 2, 3, Q("0.95 in")))
sketch2.addConstraint(Sketcher.Constraint("DistanceY", -1, 1, 26, 3, Q("1.335 in")))
sketch2.addConstraint(Sketcher.Constraint("DistanceY", -1, 1, 0, 3, 75.35524))
sketch2.addConstraint(Sketcher.Constraint("DistanceY", 1, 3, -1, 1, 7.53724))
pocket1 = doc.addObject("PartDesign::Pocket", "Pocket")
body.addObject(pocket1)
pocket1.Profile = sketch2
pocket1.Type = "ThroughAll"

# Sketch on XY plane
sketch3 = doc.addObject("Sketcher::SketchObject", "Sketch002")
body.addObject(sketch3)
sketch3.AttachmentSupport = (doc.XY_Plane, [""])
sketch3.MapMode = "FlatFace"
sketch3.AttachmentOffset = App.Placement(V(0, 0, 0.25 * 25.4), App.Rotation())
add_polygon(sketch3, [(18.67, 93.177), (246.76, 93.177), (246.76, 109.443974), (284.86, 109.443974), (284.86, 117.063974), (-19.43, 117.063974), (-19.43, 109.443974), (18.67, 109.443974)])  # lines 0-7
sketch3.addConstraint(Sketcher.Constraint("Horizontal", 0))
sketch3.addConstraint(Sketcher.Constraint("Vertical", 1))
sketch3.addConstraint(Sketcher.Constraint("Horizontal", 2))
sketch3.addConstraint(Sketcher.Constraint("Vertical", 3))
sketch3.addConstraint(Sketcher.Constraint("Horizontal", 4))
sketch3.addConstraint(Sketcher.Constraint("Vertical", 5))
sketch3.addConstraint(Sketcher.Constraint("Horizontal", 6))
sketch3.addConstraint(Sketcher.Constraint("Vertical", 7))
sketch3.addConstraint(Sketcher.Constraint("Horizontal", 2, 2, 5, 2))
sketch3.addConstraint(Sketcher.Constraint("Equal", 2, 6))
sketch3.addConstraint(Sketcher.Constraint("DistanceX", 2, 1, 2, 2, Q("1.5 in")))
sketch3.addConstraint(Sketcher.Constraint("DistanceY", 3, 1, 3, 2, Q("0.3 in")))
sketch3.addConstraint(Sketcher.Constraint("DistanceX", 0, 1, 0, 2, 228.09))
sketch3.addConstraint(Sketcher.Constraint("DistanceX", -1, 1, 0, 2, 246.76))
sketch3.addConstraint(Sketcher.Constraint("DistanceY", -1, 1, 0, 2, 93.177))
sketch3.addConstraint(Sketcher.Constraint("DistanceY", 1, 1, 1, 2, 16.266974))
pad2 = doc.addObject("PartDesign::Pad", "Pad001")
body.addObject(pad2)
pad2.Profile = sketch3
pad2.Length = Q("0.25 in")
pad2.Reversed = True
doc.recompute()

fillet = doc.addObject("PartDesign::Fillet", "Fillet")
body.addObject(fillet)
fillet.Base = (pad2, edges_at(pad2, [
    (-19.43, 94.447, 3.175),
    (285.048, 94.447, 3.175),
    (285.048, -26.629, 3.175),
    (-19.43, -26.629, 3.175),
    (18.67, 94.447, 3.175),
    (246.76, 94.447, 3.175),
    (246.76, 109.444, 3.175),
    (18.67, 109.444, 3.175),
    (-19.43, 117.064, 3.175),
    (284.86, 117.064, 3.175),
    (284.86, 109.444, 3.175),
]))
fillet.Radius = Q("0.1 in")

# Sketch on XY plane
sketch4 = doc.addObject("Sketcher::SketchObject", "Sketch003")
body.addObject(sketch4)
sketch4.AttachmentSupport = (doc.XY_Plane, [""])
sketch4.MapMode = "FlatFace"
sketch4.AttachmentOffset = App.Placement(V(0, 0, 0.25 * 25.4), App.Rotation())
add_polygon(sketch4, [(153.035, 106.961583), (112.395, 106.961583), (112.395, 99.391583), (153.035, 99.391583)])  # lines 0-3
sketch4.addConstraint(Sketcher.Constraint("Horizontal", 0))
sketch4.addConstraint(Sketcher.Constraint("Vertical", 1))
sketch4.addConstraint(Sketcher.Constraint("Horizontal", 2))
sketch4.addConstraint(Sketcher.Constraint("Vertical", 3))
sketch4.addConstraint(Sketcher.Constraint("DistanceX", 0, 2, 0, 1, Q("1.6 in")))
sketch4.addConstraint(Sketcher.Constraint("DistanceX", -1, 1, 0, 2, Q("4.425 in")))
sketch4.addConstraint(Sketcher.Constraint("DistanceY", 1, 2, 1, 1, 7.57))
sketch4.addConstraint(Sketcher.Constraint("DistanceY", -1, 1, 0, 2, 106.961583))
pocket2 = doc.addObject("PartDesign::Pocket", "Pocket001")
body.addObject(pocket2)
pocket2.Profile = sketch4
pocket2.Type = "ThroughAll"
doc.recompute()

fillet2 = doc.addObject("PartDesign::Fillet", "Fillet001")
body.addObject(fillet2)
fillet2.Base = (pocket2, edges_at(pocket2, [
    (112.395, 106.962, 3.175),
    (153.035, 106.962, 3.175),
    (153.035, 99.392, 3.175),
    (112.395, 99.392, 3.175),
]))
fillet2.Radius = Q("0.05 in")

doc.recompute()
